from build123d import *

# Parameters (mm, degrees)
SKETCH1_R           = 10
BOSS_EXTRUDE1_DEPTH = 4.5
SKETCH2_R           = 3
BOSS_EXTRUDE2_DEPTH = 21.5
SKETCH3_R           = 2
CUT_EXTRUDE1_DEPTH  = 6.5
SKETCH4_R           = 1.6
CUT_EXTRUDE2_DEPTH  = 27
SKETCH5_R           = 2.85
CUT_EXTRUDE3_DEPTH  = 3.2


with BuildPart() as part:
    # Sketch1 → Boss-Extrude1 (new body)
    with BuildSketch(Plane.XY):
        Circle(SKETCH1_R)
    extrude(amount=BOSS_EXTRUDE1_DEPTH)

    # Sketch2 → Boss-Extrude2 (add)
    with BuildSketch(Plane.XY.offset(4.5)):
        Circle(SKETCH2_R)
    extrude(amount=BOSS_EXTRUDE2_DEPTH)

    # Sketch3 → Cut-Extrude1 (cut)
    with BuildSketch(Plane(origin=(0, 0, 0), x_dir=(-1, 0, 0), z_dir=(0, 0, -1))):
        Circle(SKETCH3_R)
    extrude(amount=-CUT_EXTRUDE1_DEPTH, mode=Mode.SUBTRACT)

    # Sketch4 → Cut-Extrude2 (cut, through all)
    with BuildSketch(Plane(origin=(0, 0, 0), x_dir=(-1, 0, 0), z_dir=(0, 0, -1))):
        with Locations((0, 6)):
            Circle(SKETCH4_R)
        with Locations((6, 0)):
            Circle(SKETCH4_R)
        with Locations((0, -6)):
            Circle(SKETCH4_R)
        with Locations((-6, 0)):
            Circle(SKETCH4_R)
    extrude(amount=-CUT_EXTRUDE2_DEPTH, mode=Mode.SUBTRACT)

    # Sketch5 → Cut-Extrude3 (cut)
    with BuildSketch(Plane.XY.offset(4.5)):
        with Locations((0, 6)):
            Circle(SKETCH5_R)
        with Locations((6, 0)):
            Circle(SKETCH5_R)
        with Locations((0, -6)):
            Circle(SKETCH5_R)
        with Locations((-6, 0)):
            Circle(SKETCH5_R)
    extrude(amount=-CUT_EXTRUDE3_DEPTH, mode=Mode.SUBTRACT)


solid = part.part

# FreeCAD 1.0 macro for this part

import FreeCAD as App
import Part
import Sketcher
Q = App.Units.Quantity

doc = App.newDocument("Part")
body = doc.addObject("PartDesign::Body", "Body")

# Sketch on XY plane
sketch1 = body.newObject("Sketcher::SketchObject", "Sketch")
sketch1.AttachmentSupport = (doc.getObject("XY_Plane"), [""])
sketch1.MapMode = "FlatFace"
sketch1.addGeometry(Part.Circle(App.Vector(0, 0, 0), App.Vector(0, 0, 1), 10), False)
sketch1.addConstraint([
    Sketcher.Constraint("Coincident", 0, 3, -1, 1),
    Sketcher.Constraint("Diameter", 0, Q("20 mm")),
])
pad1 = body.newObject("PartDesign::Pad", "Pad")
pad1.Profile = sketch1
pad1.Length = 4.5

# Sketch on XY plane
sketch2 = body.newObject("Sketcher::SketchObject", "Sketch001")
sketch2.AttachmentSupport = (doc.getObject("XY_Plane"), [""])
sketch2.MapMode = "FlatFace"
sketch2.AttachmentOffset = App.Placement(App.Vector(0, 0, 4.5), App.Rotation())
sketch2.addGeometry(Part.Circle(App.Vector(0, 0, 0), App.Vector(0, 0, 1), 3), False)
sketch2.addConstraint([
    Sketcher.Constraint("Coincident", 0, 3, -1, 1),
    Sketcher.Constraint("Diameter", 0, Q("6 mm")),
])
pad2 = body.newObject("PartDesign::Pad", "Pad001")
pad2.Profile = sketch2
pad2.Length = 21.5

# Sketch on XY plane
sketch3 = body.newObject("Sketcher::SketchObject", "Sketch002")
sketch3.AttachmentSupport = (doc.getObject("XY_Plane"), [""])
sketch3.MapMode = "FlatFace"
sketch3.addGeometry(Part.Circle(App.Vector(0, 0, 0), App.Vector(0, 0, 1), 2), False)
sketch3.addConstraint([
    Sketcher.Constraint("Coincident", 0, 3, -1, 1),
    Sketcher.Constraint("Diameter", 0, Q("4 mm")),
])
pocket1 = body.newObject("PartDesign::Pocket", "Pocket")
pocket1.Profile = sketch3
pocket1.Length = 6.5
pocket1.Reversed = True

# Sketch on XY plane
sketch4 = body.newObject("Sketcher::SketchObject", "Sketch003")
sketch4.AttachmentSupport = (doc.getObject("XY_Plane"), [""])
sketch4.MapMode = "FlatFace"
sketch4.addGeometry([
    Part.Circle(App.Vector(0, 6, 0), App.Vector(0, 0, 1), 1.6),
    Part.Circle(App.Vector(-6, 0, 0), App.Vector(0, 0, 1), 1.6),
    Part.Circle(App.Vector(0, -6, 0), App.Vector(0, 0, 1), 1.6),
    Part.Circle(App.Vector(6, 0, 0), App.Vector(0, 0, 1), 1.6),
], False)
sketch4.addConstraint([
    Sketcher.Constraint("Equal", 0, 1),
    Sketcher.Constraint("Equal", 1, 2),
    Sketcher.Constraint("Equal", 2, 3),
    Sketcher.Constraint("Symmetric", 0, 3, 2, 3, -1, 1),
    Sketcher.Constraint("Symmetric", 1, 3, 3, 3, -1, 1),
    Sketcher.Constraint("PointOnObject", 0, 3, -2),
    Sketcher.Constraint("PointOnObject", 1, 3, -1),
    Sketcher.Constraint("Diameter", 0, Q("3.2 mm")),
    Sketcher.Constraint("DistanceY", -1, 1, 0, 3, Q("6 mm")),
    Sketcher.Constraint("DistanceX", 1, 3, -1, 1, Q("6 mm")),
])
pocket2 = body.newObject("PartDesign::Pocket", "Pocket001")
pocket2.Profile = sketch4
pocket2.Type = "ThroughAll"
pocket2.Reversed = True

# Sketch on XY plane
sketch5 = body.newObject("Sketcher::SketchObject", "Sketch004")
sketch5.AttachmentSupport = (doc.getObject("XY_Plane"), [""])
sketch5.MapMode = "FlatFace"
sketch5.AttachmentOffset = App.Placement(App.Vector(0, 0, 4.5), App.Rotation())
sketch5.addGeometry([
    Part.Circle(App.Vector(0, 6, 0), App.Vector(0, 0, 1), 2.85),
    Part.Circle(App.Vector(6, 0, 0), App.Vector(0, 0, 1), 2.85),
    Part.Circle(App.Vector(0, -6, 0), App.Vector(0, 0, 1), 2.85),
    Part.Circle(App.Vector(-6, 0, 0), App.Vector(0, 0, 1), 2.85),
], False)
sketch5.addConstraint([
    Sketcher.Constraint("Equal", 0, 1),
    Sketcher.Constraint("Equal", 1, 2),
    Sketcher.Constraint("Equal", 2, 3),
    Sketcher.Constraint("Symmetric", 0, 3, 2, 3, -1, 1),
    Sketcher.Constraint("Symmetric", 1, 3, 3, 3, -1, 1),
    Sketcher.Constraint("PointOnObject", 0, 3, -2),
    Sketcher.Constraint("PointOnObject", 1, 3, -1),
    Sketcher.Constraint("Diameter", 0, Q("5.7 mm")),
    Sketcher.Constraint("DistanceY", -1, 1, 0, 3, Q("6 mm")),
    Sketcher.Constraint("DistanceX", -1, 1, 1, 3, Q("6 mm")),
])
pocket3 = body.newObject("PartDesign::Pocket", "Pocket002")
pocket3.Profile = sketch5
pocket3.Length = 3.2

doc.recompute()
